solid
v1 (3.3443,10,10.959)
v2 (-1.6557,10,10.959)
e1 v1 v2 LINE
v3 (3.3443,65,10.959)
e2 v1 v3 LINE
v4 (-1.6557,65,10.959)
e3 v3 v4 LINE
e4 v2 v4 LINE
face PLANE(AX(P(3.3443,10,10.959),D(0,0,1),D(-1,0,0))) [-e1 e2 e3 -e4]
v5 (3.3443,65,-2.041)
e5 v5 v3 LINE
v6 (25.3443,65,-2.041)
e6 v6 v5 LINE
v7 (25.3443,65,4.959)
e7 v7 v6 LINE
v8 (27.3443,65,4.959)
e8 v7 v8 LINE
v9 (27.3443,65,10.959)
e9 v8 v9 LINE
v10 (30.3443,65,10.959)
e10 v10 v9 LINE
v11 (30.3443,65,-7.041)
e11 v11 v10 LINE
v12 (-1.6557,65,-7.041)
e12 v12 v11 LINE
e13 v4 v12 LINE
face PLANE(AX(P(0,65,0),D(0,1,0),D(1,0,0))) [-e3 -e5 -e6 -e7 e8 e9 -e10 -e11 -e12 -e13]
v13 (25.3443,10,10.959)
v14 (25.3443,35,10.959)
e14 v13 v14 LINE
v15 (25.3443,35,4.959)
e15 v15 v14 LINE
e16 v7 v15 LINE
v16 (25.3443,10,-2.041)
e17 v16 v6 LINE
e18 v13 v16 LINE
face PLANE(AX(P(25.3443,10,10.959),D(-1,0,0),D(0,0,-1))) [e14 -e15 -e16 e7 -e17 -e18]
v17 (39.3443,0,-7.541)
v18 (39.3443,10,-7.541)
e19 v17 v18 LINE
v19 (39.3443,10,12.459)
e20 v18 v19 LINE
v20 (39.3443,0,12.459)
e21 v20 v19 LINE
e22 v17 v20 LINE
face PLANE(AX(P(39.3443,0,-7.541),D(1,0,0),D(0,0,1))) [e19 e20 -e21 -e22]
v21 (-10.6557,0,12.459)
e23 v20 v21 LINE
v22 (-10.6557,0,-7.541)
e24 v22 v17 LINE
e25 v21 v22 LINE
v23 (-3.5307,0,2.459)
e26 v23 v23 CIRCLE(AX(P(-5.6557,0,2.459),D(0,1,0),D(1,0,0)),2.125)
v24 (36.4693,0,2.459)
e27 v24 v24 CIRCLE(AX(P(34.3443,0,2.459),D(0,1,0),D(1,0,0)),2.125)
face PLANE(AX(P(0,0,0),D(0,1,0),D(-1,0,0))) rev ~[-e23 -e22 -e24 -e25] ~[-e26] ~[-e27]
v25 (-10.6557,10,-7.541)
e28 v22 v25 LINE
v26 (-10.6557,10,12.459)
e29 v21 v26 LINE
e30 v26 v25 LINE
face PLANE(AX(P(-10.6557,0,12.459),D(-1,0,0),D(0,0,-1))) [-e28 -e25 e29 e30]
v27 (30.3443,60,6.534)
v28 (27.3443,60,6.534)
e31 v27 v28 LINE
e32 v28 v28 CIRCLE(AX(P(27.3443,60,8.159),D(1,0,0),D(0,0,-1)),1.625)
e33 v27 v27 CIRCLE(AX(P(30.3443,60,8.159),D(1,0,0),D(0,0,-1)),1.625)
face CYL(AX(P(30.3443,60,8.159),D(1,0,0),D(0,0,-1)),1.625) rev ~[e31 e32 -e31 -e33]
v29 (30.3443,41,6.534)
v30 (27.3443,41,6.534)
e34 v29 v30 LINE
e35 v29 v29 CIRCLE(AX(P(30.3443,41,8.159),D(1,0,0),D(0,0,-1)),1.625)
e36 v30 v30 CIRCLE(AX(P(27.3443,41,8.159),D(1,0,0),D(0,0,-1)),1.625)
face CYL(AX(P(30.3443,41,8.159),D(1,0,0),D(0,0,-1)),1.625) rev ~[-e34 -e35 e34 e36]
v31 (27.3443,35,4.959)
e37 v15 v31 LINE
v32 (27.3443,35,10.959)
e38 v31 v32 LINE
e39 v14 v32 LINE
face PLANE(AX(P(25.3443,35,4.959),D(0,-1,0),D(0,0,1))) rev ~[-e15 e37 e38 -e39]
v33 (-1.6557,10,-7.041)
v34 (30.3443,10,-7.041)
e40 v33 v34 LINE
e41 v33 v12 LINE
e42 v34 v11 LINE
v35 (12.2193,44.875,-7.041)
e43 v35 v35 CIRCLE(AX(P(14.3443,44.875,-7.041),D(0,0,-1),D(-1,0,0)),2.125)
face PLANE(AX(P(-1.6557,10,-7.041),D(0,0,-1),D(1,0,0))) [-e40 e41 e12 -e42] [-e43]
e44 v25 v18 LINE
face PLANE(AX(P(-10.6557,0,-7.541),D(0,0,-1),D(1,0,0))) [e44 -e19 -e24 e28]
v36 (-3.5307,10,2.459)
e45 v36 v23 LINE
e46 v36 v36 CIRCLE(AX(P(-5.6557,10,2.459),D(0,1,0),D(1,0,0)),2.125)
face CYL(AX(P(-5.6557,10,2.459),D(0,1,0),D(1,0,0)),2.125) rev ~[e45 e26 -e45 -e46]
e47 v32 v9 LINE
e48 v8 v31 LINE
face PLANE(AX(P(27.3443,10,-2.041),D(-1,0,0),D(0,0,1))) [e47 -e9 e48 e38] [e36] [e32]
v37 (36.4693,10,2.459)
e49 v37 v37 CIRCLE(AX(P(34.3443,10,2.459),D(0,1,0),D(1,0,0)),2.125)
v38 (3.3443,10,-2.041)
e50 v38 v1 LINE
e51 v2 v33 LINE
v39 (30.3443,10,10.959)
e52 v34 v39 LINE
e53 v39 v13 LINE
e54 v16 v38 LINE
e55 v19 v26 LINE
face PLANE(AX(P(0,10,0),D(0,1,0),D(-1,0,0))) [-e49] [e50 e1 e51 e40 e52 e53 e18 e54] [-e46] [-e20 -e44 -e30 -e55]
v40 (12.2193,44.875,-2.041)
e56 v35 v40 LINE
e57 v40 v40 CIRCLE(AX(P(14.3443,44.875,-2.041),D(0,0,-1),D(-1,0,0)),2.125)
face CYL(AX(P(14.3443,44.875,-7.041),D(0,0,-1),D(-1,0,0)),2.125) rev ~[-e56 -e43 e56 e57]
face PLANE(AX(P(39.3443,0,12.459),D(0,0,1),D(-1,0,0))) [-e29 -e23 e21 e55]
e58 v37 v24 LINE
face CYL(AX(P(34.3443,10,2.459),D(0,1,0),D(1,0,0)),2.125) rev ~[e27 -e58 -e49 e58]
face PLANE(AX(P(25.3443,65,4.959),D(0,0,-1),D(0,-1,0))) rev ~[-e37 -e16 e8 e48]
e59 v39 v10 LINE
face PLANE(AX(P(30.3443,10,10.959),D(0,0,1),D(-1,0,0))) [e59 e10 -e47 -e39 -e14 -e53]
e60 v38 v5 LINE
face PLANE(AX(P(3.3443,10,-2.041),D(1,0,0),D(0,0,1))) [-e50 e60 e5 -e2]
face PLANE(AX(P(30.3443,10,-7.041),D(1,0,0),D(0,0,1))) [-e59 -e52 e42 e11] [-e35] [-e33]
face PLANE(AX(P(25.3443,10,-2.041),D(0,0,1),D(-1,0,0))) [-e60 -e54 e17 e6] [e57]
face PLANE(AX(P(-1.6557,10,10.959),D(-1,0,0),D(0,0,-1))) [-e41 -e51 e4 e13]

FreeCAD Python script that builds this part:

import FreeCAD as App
import Part
import Sketcher
Q = App.Units.Quantity


def add_polygon(sketch, points):
    """Adds a closed chain of lines whose ends are joined by coincident constraints."""
    first, n = sketch.GeometryCount, len(points)
    for a, b in zip(points, points[1:] + points[:1]):
        sketch.addGeometry(Part.LineSegment(App.Vector(*a, 0), App.Vector(*b, 0)), False)
    for i in range(n):
        sketch.addConstraint(Sketcher.Constraint("Coincident", first + i, 2, first + (i + 1) % n, 1))

doc = App.newDocument("Part")
body = doc.addObject("PartDesign::Body", "Body")

# Sketch on XZ plane
sketch1 = doc.addObject("Sketcher::SketchObject", "Sketch")
body.addObject(sketch1)
sketch1.AttachmentSupport = (doc.XZ_Plane, [""])
sketch1.MapMode = "FlatFace"
add_polygon(sketch1, [(39, -8), (-11, -8), (-11, 12), (39, 12)])  # lines 0-3
sketch1.addConstraint(Sketcher.Constraint("Horizontal", 0))
sketch1.addConstraint(Sketcher.Constraint("Vertical", 1))
sketch1.addConstraint(Sketcher.Constraint("Horizontal", 2))
sketch1.addConstraint(Sketcher.Constraint("Vertical", 3))
sketch1.addConstraint(Sketcher.Constraint("DistanceX", 0, 2, 0, 1, Q("50 mm")))
sketch1.addConstraint(Sketcher.Constraint("DistanceY", 1, 1, 1, 2, Q("20 mm")))
sketch1.addConstraint(Sketcher.Constraint("DistanceY", 0, 2, -1, 1, Q("7.541 mm")))
sketch1.addConstraint(Sketcher.Constraint("DistanceX", 0, 2, -1, 1, Q("10.6557 mm")))
pad1 = doc.addObject("PartDesign::Pad", "Pad")
body.addObject(pad1)
pad1.Profile = sketch1
pad1.Length = 10
pad1.Reversed = True

# Sketch on XZ plane
sketch2 = doc.addObject("Sketcher::SketchObject", "Sketch001")
body.addObject(sketch2)
sketch2.AttachmentSupport = (doc.XZ_Plane, [""])
sketch2.MapMode = "FlatFace"
sketch2.AttachmentOffset = App.Placement(App.Vector(0, 0, -10), App.Rotation())
add_polygon(sketch2, [(-2, -7), (-2, 11), (3, 11), (3, -2), (25, -2), (25, 11), (30, 11), (30, -7)])  # lines 0-7
sketch2.addConstraint(Sketcher.Constraint("Vertical", 0))
sketch2.addConstraint(Sketcher.Constraint("Horizontal", 1))
sketch2.addConstraint(Sketcher.Constraint("Vertical", 2))
sketch2.addConstraint(Sketcher.Constraint("Horizontal", 3))
sketch2.addConstraint(Sketcher.Constraint("Vertical", 4))
sketch2.addConstraint(Sketcher.Constraint("Horizontal", 5))
sketch2.addConstraint(Sketcher.Constraint("Vertical", 6))
sketch2.addConstraint(Sketcher.Constraint("Horizontal", 7))
sketch2.addConstraint(Sketcher.Constraint("Horizontal", 1, 2, 4, 2))
sketch2.addConstraint(Sketcher.Constraint("Equal", 1, 5))
sketch2.addConstraint(Sketcher.Constraint("DistanceX", 1, 1, 1, 2, Q("5 mm")))
sketch2.addConstraint(Sketcher.Constraint("DistanceX", 3, 1, 3, 2, Q("22 mm")))
sketch2.addConstraint(Sketcher.Constraint("DistanceY", 2, 2, 2, 1, Q("13 mm")))
sketch2.addConstraint(Sketcher.Constraint("DistanceY", 6, 2, 3, 2, Q("5 mm")))
sketch2.addConstraint(Sketcher.Constraint("DistanceY", -1, 1, 0, 2, Q("10.959 mm")))
sketch2.addConstraint(Sketcher.Constraint("DistanceX", 0, 2, -1, 1, Q("1.6557 mm")))
pad2 = doc.addObject("PartDesign::Pad", "Pad001")
body.addObject(pad2)
pad2.Profile = sketch2
pad2.Length = 55
pad2.Reversed = True

# Sketch on XY plane
sketch3 = doc.addObject("Sketcher::SketchObject", "Sketch002")
body.addObject(sketch3)
sketch3.AttachmentSupport = (doc.XY_Plane, [""])
sketch3.MapMode = "FlatFace"
sketch3.AttachmentOffset = App.Placement(App.Vector(0, 0, -7.041), App.Rotation())
sketch3.addGeometry(Part.Circle(App.Vector(14.3, 44.9, 0), App.Vector(0, 0, 1), 2.1), False)
sketch3.addConstraint(Sketcher.Constraint("Diameter", 0, Q("4.25 mm")))
sketch3.addConstraint(Sketcher.Constraint("DistanceY", -1, 1, 0, 3, Q("44.875 mm")))
sketch3.addConstraint(Sketcher.Constraint("DistanceX", -1, 1, 0, 3, Q("14.3443 mm")))
pocket1 = doc.addObject("PartDesign::Pocket", "Pocket")
body.addObject(pocket1)
pocket1.Profile = sketch3
pocket1.Type = "UpToFirst"
pocket1.Reversed = True

# Sketch on XZ plane
sketch4 = doc.addObject("Sketcher::SketchObject", "Sketch003")
body.addObject(sketch4)
sketch4.AttachmentSupport = (doc.XZ_Plane, [""])
sketch4.MapMode = "FlatFace"
sketch4.AttachmentOffset = App.Placement(App.Vector(0, 0, -10), App.Rotation())
sketch4.addGeometry(Part.Circle(App.Vector(-5.7, 2.5, 0), App.Vector(0, 0, 1), 2.1), False)
sketch4.addGeometry(Part.Circle(App.Vector(34.3, 2.5, 0), App.Vector(0, 0, 1), 2.1), False)
sketch4.addConstraint(Sketcher.Constraint("Equal", 0, 1))
sketch4.addConstraint(Sketcher.Constraint("Horizontal", 0, 3, 1, 3))
sketch4.addConstraint(Sketcher.Constraint("Diameter", 0, Q("4.25 mm")))
sketch4.addConstraint(Sketcher.Constraint("DistanceX", 0, 3, 1, 3, Q("40 mm")))
sketch4.addConstraint(Sketcher.Constraint("DistanceY", -1, 1, 0, 3, Q("2.459 mm")))
sketch4.addConstraint(Sketcher.Constraint("DistanceX", 0, 3, -1, 1, Q("5.6557 mm")))
pocket2 = doc.addObject("PartDesign::Pocket", "Pocket001")
body.addObject(pocket2)
pocket2.Profile = sketch4
pocket2.Type = "UpToFirst"
pocket2.Reversed = True

# Sketch on YZ plane
sketch5 = doc.addObject("Sketcher::SketchObject", "Sketch004")
body.addObject(sketch5)
sketch5.AttachmentSupport = (doc.YZ_Plane, [""])
sketch5.MapMode = "FlatFace"
sketch5.AttachmentOffset = App.Placement(App.Vector(0, 0, 30.3443), App.Rotation())
sketch5.addGeometry(Part.Circle(App.Vector(41, 8.2, 0), App.Vector(0, 0, 1), 1.6), False)
sketch5.addGeometry(Part.Circle(App.Vector(60, 8.2, 0), App.Vector(0, 0, 1), 1.6), False)
sketch5.addConstraint(Sketcher.Constraint("Equal", 0, 1))
sketch5.addConstraint(Sketcher.Constraint("Horizontal", 0, 3, 1, 3))
sketch5.addConstraint(Sketcher.Constraint("Diameter", 0, Q("3.25 mm")))
sketch5.addConstraint(Sketcher.Constraint("DistanceX", 0, 3, 1, 3, Q("19 mm")))
sketch5.addConstraint(Sketcher.Constraint("DistanceX", -1, 1, 0, 3, Q("41 mm")))
sketch5.addConstraint(Sketcher.Constraint("DistanceY", -1, 1, 0, 3, Q("8.159 mm")))
pocket3 = doc.addObject("PartDesign::Pocket", "Pocket002")
body.addObject(pocket3)
pocket3.Profile = sketch5
pocket3.Length = 5

# Sketch on YZ plane
sketch6 = doc.addObject("Sketcher::SketchObject", "Sketch005")
body.addObject(sketch6)
sketch6.AttachmentSupport = (doc.YZ_Plane, [""])
sketch6.MapMode = "FlatFace"
sketch6.AttachmentOffset = App.Placement(App.Vector(0, 0, 25.3443), App.Rotation())
add_polygon(sketch6, [(65, 11), (65, 5), (35, 5), (35, 11)])  # lines 0-3
sketch6.addConstraint(Sketcher.Constraint("Vertical", 0))
sketch6.addConstraint(Sketcher.Constraint("Horizontal", 1))
sketch6.addConstraint(Sketcher.Constraint("Vertical", 2))
sketch6.addConstraint(Sketcher.Constraint("Horizontal", 3))
sketch6.addConstraint(Sketcher.Constraint("DistanceX", 1, 2, 1, 1, Q("30 mm")))
sketch6.addConstraint(Sketcher.Constraint("DistanceY", 0, 2, 0, 1, Q("6 mm")))
sketch6.addConstraint(Sketcher.Constraint("DistanceX", -1, 1, 0, 2, Q("65 mm")))
sketch6.addConstraint(Sketcher.Constraint("DistanceY", -1, 1, 0, 2, Q("4.959 mm")))
pocket4 = doc.addObject("PartDesign::Pocket", "Pocket003")
body.addObject(pocket4)
pocket4.Profile = sketch6
pocket4.Length = 2
pocket4.Reversed = True

doc.recompute()
